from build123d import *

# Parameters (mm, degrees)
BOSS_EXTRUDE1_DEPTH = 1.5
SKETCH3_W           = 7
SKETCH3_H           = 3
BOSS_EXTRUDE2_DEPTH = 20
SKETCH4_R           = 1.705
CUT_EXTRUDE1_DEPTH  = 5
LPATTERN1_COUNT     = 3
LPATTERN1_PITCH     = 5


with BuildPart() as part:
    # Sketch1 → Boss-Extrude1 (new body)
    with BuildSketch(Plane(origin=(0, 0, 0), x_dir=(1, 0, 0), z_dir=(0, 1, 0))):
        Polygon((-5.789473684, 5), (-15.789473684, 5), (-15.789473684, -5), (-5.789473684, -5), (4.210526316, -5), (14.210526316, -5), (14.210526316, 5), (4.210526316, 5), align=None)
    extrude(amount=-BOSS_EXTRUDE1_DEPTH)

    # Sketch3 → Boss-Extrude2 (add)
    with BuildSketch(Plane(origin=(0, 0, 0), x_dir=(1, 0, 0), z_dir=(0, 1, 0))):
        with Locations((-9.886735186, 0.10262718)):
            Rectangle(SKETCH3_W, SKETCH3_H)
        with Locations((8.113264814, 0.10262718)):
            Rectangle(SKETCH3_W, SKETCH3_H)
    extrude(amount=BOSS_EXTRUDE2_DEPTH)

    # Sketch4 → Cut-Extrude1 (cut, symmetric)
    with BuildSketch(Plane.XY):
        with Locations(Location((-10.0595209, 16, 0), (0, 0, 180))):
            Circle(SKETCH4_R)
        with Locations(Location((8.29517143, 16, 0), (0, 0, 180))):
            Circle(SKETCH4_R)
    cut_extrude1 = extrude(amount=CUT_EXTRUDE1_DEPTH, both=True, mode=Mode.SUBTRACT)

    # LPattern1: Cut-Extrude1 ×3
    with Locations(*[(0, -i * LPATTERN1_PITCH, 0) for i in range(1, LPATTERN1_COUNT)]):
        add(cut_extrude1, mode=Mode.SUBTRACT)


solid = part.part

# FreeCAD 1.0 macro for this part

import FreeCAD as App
import Part
import Sketcher

V = App.Vector
Q = App.Units.Quantity

doc = App.newDocument("Part")
params = doc.addObject("Spreadsheet::Sheet", "Params")
for row, (alias, value) in enumerate([
    ("sketch1_width", "30 mm"),
    ("sketch1_height", "10 mm"),
    ("pad1_length", "1.5 mm"),
    ("sketch2_width", "7 mm"),
    ("sketch2_height", "3 mm"),
    ("pad2_length", "20 mm"),
    ("sketch3_diameter", "3.41 mm"),
    ("pocket1_length", "10 mm"),
    ("linearpattern_pitch", "5 mm"),
], start=1):
    params.set(f"A{row}", alias)
    params.set(f"B{row}", "=" + value)
    params.setAlias(f"B{row}", alias)

body = doc.addObject("PartDesign::Body", "Body")

sketch1 = doc.addObject("Sketcher::SketchObject", "Sketch")
body.addObject(sketch1)
sketch1.AttachmentSupport = (doc.XZ_Plane, [""])
sketch1.MapMode = "FlatFace"
sketch1.addGeometry(Part.LineSegment(V(-16, -5, 0), V(-16, 5, 0)), False)
sketch1.addGeometry(Part.LineSegment(V(-16, 5, 0), V(14, 5, 0)), False)
sketch1.addGeometry(Part.LineSegment(V(14, 5, 0), V(14, -5, 0)), False)
sketch1.addGeometry(Part.LineSegment(V(14, -5, 0), V(-16, -5, 0)), False)
sketch1.addConstraint(Sketcher.Constraint("Coincident", 0, 2, 1, 1))
sketch1.addConstraint(Sketcher.Constraint("Coincident", 1, 2, 2, 1))
sketch1.addConstraint(Sketcher.Constraint("Coincident", 2, 2, 3, 1))
sketch1.addConstraint(Sketcher.Constraint("Coincident", 3, 2, 0, 1))
sketch1.addConstraint(Sketcher.Constraint("Vertical", 0))
sketch1.addConstraint(Sketcher.Constraint("Horizontal", 1))
sketch1.addConstraint(Sketcher.Constraint("Vertical", 2))
sketch1.addConstraint(Sketcher.Constraint("Horizontal", 3))
sketch1.addConstraint(Sketcher.Constraint("DistanceX", 1, 1, 1, 2, Q("30 mm")))
sketch1.addConstraint(Sketcher.Constraint("DistanceY", 0, 1, 0, 2, Q("10 mm")))
sketch1.addConstraint(Sketcher.Constraint("DistanceY", -1, 1, 0, 2, Q("5 mm")))
sketch1.addConstraint(Sketcher.Constraint("DistanceX", 0, 2, -1, 1, Q("15.789474 mm")))
sketch1.setExpression("Constraints[8]", "Params.sketch1_width")
sketch1.setExpression("Constraints[9]", "Params.sketch1_height")
pad1 = doc.addObject("PartDesign::Pad", "Pad")
body.addObject(pad1)
pad1.Profile = sketch1
pad1.setExpression("Length", "Params.pad1_length")

sketch2 = doc.addObject("Sketcher::SketchObject", "Sketch001")
body.addObject(sketch2)
sketch2.AttachmentSupport = (doc.XZ_Plane, [""])
sketch2.MapMode = "FlatFace"
sketch2.addGeometry(Part.LineSegment(V(-13.4, -1.6, 0), V(-13.4, 1.4, 0)), False)
sketch2.addGeometry(Part.LineSegment(V(-13.4, 1.4, 0), V(-6.4, 1.4, 0)), False)
sketch2.addGeometry(Part.LineSegment(V(-6.4, 1.4, 0), V(-6.4, -1.6, 0)), False)
sketch2.addGeometry(Part.LineSegment(V(-6.4, -1.6, 0), V(-13.4, -1.6, 0)), False)
sketch2.addGeometry(Part.LineSegment(V(4.6, -1.6, 0), V(4.6, 1.4, 0)), False)
sketch2.addGeometry(Part.LineSegment(V(4.6, 1.4, 0), V(11.6, 1.4, 0)), False)
sketch2.addGeometry(Part.LineSegment(V(11.6, 1.4, 0), V(11.6, -1.6, 0)), False)
sketch2.addGeometry(Part.LineSegment(V(11.6, -1.6, 0), V(4.6, -1.6, 0)), False)
sketch2.addConstraint(Sketcher.Constraint("Coincident", 0, 2, 1, 1))
sketch2.addConstraint(Sketcher.Constraint("Coincident", 1, 2, 2, 1))
sketch2.addConstraint(Sketcher.Constraint("Coincident", 2, 2, 3, 1))
sketch2.addConstraint(Sketcher.Constraint("Coincident", 3, 2, 0, 1))
sketch2.addConstraint(Sketcher.Constraint("Coincident", 4, 2, 5, 1))
sketch2.addConstraint(Sketcher.Constraint("Coincident", 5, 2, 6, 1))
sketch2.addConstraint(Sketcher.Constraint("Coincident", 6, 2, 7, 1))
sketch2.addConstraint(Sketcher.Constraint("Coincident", 7, 2, 4, 1))
sketch2.addConstraint(Sketcher.Constraint("Vertical", 0))
sketch2.addConstraint(Sketcher.Constraint("Horizontal", 1))
sketch2.addConstraint(Sketcher.Constraint("Vertical", 2))
sketch2.addConstraint(Sketcher.Constraint("Horizontal", 3))
sketch2.addConstraint(Sketcher.Constraint("Vertical", 4))
sketch2.addConstraint(Sketcher.Constraint("Horizontal", 5))
sketch2.addConstraint(Sketcher.Constraint("Vertical", 6))
sketch2.addConstraint(Sketcher.Constraint("Horizontal", 7))
sketch2.addConstraint(Sketcher.Constraint("Horizontal", 1, 2, 4, 2))
sketch2.addConstraint(Sketcher.Constraint("Horizontal", 3, 2, 6, 2))
sketch2.addConstraint(Sketcher.Constraint("Equal", 3, 5))
sketch2.addConstraint(Sketcher.Constraint("DistanceX", 1, 1, 1, 2, Q("7 mm")))
sketch2.addConstraint(Sketcher.Constraint("DistanceY", 0, 1, 0, 2, Q("3 mm")))
sketch2.addConstraint(Sketcher.Constraint("DistanceX", 1, 2, 4, 2, Q("11 mm")))
sketch2.addConstraint(Sketcher.Constraint("DistanceX", 0, 2, -1, 1, Q("13.386735 mm")))
sketch2.addConstraint(Sketcher.Constraint("DistanceY", -1, 1, 0, 2, Q("1.397373 mm")))
sketch2.setExpression("Constraints[19]", "Params.sketch2_width")
sketch2.setExpression("Constraints[20]", "Params.sketch2_height")
pad2 = doc.addObject("PartDesign::Pad", "Pad001")
body.addObject(pad2)
pad2.Profile = sketch2
pad2.setExpression("Length", "Params.pad2_length")
pad2.Reversed = True

sketch3 = doc.addObject("Sketcher::SketchObject", "Sketch002")
body.addObject(sketch3)
sketch3.AttachmentSupport = (doc.XY_Plane, [""])
sketch3.MapMode = "FlatFace"
sketch3.addGeometry(Part.Circle(V(-10.1, 16, 0), V(0, 0, 1), 1.7), False)
sketch3.addGeometry(Part.Circle(V(8.3, 16, 0), V(0, 0, 1), 1.7), False)
sketch3.addConstraint(Sketcher.Constraint("Equal", 0, 1))
sketch3.addConstraint(Sketcher.Constraint("Horizontal", 0, 3, 1, 3))
sketch3.addConstraint(Sketcher.Constraint("Diameter", 0, Q("3.41 mm")))
sketch3.addConstraint(Sketcher.Constraint("DistanceY", -1, 1, 0, 3, Q("16 mm")))
sketch3.addConstraint(Sketcher.Constraint("DistanceX", 0, 3, -1, 1, Q("10.059521 mm")))
sketch3.addConstraint(Sketcher.Constraint("DistanceX", -1, 1, 1, 3, Q("8.295171 mm")))
sketch3.setExpression("Constraints[2]", "Params.sketch3_diameter")
pocket1 = doc.addObject("PartDesign::Pocket", "Pocket")
body.addObject(pocket1)
pocket1.Profile = sketch3
pocket1.setExpression("Length", "Params.pocket1_length")
pocket1.Midplane = True
doc.recompute()

linearpattern = doc.addObject("PartDesign::LinearPattern", "LinearPattern")
body.addObject(linearpattern)
linearpattern.Originals = [pocket1]
linearpattern.Direction = (doc.Y_Axis, [""])
linearpattern.Mode = "offset"
linearpattern.setExpression("Offset", "Params.linearpattern_pitch")
linearpattern.Occurrences = 3
linearpattern.Reversed = True
body.Tip = linearpattern

doc.recompute()
